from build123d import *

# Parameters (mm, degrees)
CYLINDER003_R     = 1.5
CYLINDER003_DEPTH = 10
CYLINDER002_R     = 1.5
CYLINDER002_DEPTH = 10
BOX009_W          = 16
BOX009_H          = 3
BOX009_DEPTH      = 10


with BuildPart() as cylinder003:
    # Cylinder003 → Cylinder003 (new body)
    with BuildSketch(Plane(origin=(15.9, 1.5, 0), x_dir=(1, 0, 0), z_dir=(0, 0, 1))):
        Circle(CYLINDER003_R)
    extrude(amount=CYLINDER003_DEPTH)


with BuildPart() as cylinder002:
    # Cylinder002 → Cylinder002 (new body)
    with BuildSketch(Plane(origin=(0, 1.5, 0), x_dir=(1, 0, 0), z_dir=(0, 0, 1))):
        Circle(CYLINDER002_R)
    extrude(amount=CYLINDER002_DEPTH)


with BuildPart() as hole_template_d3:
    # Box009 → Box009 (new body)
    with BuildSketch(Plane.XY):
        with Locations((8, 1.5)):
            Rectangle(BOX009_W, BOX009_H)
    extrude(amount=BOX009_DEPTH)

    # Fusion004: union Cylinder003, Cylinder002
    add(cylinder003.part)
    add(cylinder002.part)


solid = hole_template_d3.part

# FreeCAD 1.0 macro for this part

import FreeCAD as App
import Part
import Sketcher

V = App.Vector


def add_polygon(sketch, points):
    """Adds a closed chain of lines whose ends are joined by coincident constraints."""
    first, n = sketch.GeometryCount, len(points)
    for a, b in zip(points, points[1:] + points[:1]):
        sketch.addGeometry(Part.LineSegment(App.Vector(*a, 0), App.Vector(*b, 0)), False)
    for i in range(n):
        sketch.addConstraint(Sketcher.Constraint("Coincident", first + i, 2, first + (i + 1) % n, 1))

doc = App.newDocument("Part")
body = doc.addObject("PartDesign::Body", "Body")

# Sketch on XY plane
sketch1 = body.newObject("Sketcher::SketchObject", "Sketch")
sketch1.AttachmentSupport = (doc.getObject("XY_Plane"), [""])
sketch1.MapMode = "FlatFace"
sketch1.addGeometry(Part.Circle(V(15.9, 1.5, 0), V(0, 0, 1), 1.5), False)
sketch1.addConstraint([
    Sketcher.Constraint("Diameter", 0, 3.0),
    Sketcher.Constraint("DistanceX", -1, 1, 0, 3, 15.9),
    Sketcher.Constraint("DistanceY", -1, 1, 0, 3, 1.5),
])
pad1 = body.newObject("PartDesign::Pad", "Pad")
pad1.Profile = sketch1
pad1.Length = 10
body2 = doc.addObject("PartDesign::Body", "Body001")

# Sketch on XY plane
sketch2 = body2.newObject("Sketcher::SketchObject", "Sketch001")
sketch2.AttachmentSupport = (doc.getObject("XY_Plane001"), [""])
sketch2.MapMode = "FlatFace"
sketch2.addGeometry(Part.Circle(V(0, 1.5, 0), V(0, 0, 1), 1.5), False)
sketch2.addConstraint([
    Sketcher.Constraint("PointOnObject", 0, 3, -2),
    Sketcher.Constraint("Diameter", 0, 3.0),
    Sketcher.Constraint("DistanceY", -1, 1, 0, 3, 1.5),
])
pad2 = body2.newObject("PartDesign::Pad", "Pad001")
pad2.Profile = sketch2
pad2.Length = 10
body3 = doc.addObject("PartDesign::Body", "Body002")

# Sketch on XY plane
sketch3 = body3.newObject("Sketcher::SketchObject", "Sketch002")
sketch3.AttachmentSupport = (doc.getObject("XY_Plane002"), [""])
sketch3.MapMode = "FlatFace"
add_polygon(sketch3, [(0, 3), (0, 0), (16, 0), (16, 3)])  # lines 0-3
sketch3.addConstraint([
    Sketcher.Constraint("Vertical", 0),
    Sketcher.Constraint("Horizontal", 1),
    Sketcher.Constraint("Vertical", 2),
    Sketcher.Constraint("Horizontal", 3),
    Sketcher.Constraint("Coincident", 0, 2, -1, 1),
    Sketcher.Constraint("DistanceX", 1, 1, 1, 2, 16.0),
    Sketcher.Constraint("DistanceY", 0, 2, 0, 1, 3.0),
])
pad3 = body3.newObject("PartDesign::Pad", "Pad002")
pad3.Profile = sketch3
pad3.Length = 10
doc.recompute()

boolean = body3.newObject("PartDesign::Boolean", "Boolean")
boolean.Type = "Fuse"
boolean.addObjects([body])
doc.recompute()

boolean2 = body3.newObject("PartDesign::Boolean", "Boolean001")
boolean2.Type = "Fuse"
boolean2.addObjects([body2])

doc.recompute()
